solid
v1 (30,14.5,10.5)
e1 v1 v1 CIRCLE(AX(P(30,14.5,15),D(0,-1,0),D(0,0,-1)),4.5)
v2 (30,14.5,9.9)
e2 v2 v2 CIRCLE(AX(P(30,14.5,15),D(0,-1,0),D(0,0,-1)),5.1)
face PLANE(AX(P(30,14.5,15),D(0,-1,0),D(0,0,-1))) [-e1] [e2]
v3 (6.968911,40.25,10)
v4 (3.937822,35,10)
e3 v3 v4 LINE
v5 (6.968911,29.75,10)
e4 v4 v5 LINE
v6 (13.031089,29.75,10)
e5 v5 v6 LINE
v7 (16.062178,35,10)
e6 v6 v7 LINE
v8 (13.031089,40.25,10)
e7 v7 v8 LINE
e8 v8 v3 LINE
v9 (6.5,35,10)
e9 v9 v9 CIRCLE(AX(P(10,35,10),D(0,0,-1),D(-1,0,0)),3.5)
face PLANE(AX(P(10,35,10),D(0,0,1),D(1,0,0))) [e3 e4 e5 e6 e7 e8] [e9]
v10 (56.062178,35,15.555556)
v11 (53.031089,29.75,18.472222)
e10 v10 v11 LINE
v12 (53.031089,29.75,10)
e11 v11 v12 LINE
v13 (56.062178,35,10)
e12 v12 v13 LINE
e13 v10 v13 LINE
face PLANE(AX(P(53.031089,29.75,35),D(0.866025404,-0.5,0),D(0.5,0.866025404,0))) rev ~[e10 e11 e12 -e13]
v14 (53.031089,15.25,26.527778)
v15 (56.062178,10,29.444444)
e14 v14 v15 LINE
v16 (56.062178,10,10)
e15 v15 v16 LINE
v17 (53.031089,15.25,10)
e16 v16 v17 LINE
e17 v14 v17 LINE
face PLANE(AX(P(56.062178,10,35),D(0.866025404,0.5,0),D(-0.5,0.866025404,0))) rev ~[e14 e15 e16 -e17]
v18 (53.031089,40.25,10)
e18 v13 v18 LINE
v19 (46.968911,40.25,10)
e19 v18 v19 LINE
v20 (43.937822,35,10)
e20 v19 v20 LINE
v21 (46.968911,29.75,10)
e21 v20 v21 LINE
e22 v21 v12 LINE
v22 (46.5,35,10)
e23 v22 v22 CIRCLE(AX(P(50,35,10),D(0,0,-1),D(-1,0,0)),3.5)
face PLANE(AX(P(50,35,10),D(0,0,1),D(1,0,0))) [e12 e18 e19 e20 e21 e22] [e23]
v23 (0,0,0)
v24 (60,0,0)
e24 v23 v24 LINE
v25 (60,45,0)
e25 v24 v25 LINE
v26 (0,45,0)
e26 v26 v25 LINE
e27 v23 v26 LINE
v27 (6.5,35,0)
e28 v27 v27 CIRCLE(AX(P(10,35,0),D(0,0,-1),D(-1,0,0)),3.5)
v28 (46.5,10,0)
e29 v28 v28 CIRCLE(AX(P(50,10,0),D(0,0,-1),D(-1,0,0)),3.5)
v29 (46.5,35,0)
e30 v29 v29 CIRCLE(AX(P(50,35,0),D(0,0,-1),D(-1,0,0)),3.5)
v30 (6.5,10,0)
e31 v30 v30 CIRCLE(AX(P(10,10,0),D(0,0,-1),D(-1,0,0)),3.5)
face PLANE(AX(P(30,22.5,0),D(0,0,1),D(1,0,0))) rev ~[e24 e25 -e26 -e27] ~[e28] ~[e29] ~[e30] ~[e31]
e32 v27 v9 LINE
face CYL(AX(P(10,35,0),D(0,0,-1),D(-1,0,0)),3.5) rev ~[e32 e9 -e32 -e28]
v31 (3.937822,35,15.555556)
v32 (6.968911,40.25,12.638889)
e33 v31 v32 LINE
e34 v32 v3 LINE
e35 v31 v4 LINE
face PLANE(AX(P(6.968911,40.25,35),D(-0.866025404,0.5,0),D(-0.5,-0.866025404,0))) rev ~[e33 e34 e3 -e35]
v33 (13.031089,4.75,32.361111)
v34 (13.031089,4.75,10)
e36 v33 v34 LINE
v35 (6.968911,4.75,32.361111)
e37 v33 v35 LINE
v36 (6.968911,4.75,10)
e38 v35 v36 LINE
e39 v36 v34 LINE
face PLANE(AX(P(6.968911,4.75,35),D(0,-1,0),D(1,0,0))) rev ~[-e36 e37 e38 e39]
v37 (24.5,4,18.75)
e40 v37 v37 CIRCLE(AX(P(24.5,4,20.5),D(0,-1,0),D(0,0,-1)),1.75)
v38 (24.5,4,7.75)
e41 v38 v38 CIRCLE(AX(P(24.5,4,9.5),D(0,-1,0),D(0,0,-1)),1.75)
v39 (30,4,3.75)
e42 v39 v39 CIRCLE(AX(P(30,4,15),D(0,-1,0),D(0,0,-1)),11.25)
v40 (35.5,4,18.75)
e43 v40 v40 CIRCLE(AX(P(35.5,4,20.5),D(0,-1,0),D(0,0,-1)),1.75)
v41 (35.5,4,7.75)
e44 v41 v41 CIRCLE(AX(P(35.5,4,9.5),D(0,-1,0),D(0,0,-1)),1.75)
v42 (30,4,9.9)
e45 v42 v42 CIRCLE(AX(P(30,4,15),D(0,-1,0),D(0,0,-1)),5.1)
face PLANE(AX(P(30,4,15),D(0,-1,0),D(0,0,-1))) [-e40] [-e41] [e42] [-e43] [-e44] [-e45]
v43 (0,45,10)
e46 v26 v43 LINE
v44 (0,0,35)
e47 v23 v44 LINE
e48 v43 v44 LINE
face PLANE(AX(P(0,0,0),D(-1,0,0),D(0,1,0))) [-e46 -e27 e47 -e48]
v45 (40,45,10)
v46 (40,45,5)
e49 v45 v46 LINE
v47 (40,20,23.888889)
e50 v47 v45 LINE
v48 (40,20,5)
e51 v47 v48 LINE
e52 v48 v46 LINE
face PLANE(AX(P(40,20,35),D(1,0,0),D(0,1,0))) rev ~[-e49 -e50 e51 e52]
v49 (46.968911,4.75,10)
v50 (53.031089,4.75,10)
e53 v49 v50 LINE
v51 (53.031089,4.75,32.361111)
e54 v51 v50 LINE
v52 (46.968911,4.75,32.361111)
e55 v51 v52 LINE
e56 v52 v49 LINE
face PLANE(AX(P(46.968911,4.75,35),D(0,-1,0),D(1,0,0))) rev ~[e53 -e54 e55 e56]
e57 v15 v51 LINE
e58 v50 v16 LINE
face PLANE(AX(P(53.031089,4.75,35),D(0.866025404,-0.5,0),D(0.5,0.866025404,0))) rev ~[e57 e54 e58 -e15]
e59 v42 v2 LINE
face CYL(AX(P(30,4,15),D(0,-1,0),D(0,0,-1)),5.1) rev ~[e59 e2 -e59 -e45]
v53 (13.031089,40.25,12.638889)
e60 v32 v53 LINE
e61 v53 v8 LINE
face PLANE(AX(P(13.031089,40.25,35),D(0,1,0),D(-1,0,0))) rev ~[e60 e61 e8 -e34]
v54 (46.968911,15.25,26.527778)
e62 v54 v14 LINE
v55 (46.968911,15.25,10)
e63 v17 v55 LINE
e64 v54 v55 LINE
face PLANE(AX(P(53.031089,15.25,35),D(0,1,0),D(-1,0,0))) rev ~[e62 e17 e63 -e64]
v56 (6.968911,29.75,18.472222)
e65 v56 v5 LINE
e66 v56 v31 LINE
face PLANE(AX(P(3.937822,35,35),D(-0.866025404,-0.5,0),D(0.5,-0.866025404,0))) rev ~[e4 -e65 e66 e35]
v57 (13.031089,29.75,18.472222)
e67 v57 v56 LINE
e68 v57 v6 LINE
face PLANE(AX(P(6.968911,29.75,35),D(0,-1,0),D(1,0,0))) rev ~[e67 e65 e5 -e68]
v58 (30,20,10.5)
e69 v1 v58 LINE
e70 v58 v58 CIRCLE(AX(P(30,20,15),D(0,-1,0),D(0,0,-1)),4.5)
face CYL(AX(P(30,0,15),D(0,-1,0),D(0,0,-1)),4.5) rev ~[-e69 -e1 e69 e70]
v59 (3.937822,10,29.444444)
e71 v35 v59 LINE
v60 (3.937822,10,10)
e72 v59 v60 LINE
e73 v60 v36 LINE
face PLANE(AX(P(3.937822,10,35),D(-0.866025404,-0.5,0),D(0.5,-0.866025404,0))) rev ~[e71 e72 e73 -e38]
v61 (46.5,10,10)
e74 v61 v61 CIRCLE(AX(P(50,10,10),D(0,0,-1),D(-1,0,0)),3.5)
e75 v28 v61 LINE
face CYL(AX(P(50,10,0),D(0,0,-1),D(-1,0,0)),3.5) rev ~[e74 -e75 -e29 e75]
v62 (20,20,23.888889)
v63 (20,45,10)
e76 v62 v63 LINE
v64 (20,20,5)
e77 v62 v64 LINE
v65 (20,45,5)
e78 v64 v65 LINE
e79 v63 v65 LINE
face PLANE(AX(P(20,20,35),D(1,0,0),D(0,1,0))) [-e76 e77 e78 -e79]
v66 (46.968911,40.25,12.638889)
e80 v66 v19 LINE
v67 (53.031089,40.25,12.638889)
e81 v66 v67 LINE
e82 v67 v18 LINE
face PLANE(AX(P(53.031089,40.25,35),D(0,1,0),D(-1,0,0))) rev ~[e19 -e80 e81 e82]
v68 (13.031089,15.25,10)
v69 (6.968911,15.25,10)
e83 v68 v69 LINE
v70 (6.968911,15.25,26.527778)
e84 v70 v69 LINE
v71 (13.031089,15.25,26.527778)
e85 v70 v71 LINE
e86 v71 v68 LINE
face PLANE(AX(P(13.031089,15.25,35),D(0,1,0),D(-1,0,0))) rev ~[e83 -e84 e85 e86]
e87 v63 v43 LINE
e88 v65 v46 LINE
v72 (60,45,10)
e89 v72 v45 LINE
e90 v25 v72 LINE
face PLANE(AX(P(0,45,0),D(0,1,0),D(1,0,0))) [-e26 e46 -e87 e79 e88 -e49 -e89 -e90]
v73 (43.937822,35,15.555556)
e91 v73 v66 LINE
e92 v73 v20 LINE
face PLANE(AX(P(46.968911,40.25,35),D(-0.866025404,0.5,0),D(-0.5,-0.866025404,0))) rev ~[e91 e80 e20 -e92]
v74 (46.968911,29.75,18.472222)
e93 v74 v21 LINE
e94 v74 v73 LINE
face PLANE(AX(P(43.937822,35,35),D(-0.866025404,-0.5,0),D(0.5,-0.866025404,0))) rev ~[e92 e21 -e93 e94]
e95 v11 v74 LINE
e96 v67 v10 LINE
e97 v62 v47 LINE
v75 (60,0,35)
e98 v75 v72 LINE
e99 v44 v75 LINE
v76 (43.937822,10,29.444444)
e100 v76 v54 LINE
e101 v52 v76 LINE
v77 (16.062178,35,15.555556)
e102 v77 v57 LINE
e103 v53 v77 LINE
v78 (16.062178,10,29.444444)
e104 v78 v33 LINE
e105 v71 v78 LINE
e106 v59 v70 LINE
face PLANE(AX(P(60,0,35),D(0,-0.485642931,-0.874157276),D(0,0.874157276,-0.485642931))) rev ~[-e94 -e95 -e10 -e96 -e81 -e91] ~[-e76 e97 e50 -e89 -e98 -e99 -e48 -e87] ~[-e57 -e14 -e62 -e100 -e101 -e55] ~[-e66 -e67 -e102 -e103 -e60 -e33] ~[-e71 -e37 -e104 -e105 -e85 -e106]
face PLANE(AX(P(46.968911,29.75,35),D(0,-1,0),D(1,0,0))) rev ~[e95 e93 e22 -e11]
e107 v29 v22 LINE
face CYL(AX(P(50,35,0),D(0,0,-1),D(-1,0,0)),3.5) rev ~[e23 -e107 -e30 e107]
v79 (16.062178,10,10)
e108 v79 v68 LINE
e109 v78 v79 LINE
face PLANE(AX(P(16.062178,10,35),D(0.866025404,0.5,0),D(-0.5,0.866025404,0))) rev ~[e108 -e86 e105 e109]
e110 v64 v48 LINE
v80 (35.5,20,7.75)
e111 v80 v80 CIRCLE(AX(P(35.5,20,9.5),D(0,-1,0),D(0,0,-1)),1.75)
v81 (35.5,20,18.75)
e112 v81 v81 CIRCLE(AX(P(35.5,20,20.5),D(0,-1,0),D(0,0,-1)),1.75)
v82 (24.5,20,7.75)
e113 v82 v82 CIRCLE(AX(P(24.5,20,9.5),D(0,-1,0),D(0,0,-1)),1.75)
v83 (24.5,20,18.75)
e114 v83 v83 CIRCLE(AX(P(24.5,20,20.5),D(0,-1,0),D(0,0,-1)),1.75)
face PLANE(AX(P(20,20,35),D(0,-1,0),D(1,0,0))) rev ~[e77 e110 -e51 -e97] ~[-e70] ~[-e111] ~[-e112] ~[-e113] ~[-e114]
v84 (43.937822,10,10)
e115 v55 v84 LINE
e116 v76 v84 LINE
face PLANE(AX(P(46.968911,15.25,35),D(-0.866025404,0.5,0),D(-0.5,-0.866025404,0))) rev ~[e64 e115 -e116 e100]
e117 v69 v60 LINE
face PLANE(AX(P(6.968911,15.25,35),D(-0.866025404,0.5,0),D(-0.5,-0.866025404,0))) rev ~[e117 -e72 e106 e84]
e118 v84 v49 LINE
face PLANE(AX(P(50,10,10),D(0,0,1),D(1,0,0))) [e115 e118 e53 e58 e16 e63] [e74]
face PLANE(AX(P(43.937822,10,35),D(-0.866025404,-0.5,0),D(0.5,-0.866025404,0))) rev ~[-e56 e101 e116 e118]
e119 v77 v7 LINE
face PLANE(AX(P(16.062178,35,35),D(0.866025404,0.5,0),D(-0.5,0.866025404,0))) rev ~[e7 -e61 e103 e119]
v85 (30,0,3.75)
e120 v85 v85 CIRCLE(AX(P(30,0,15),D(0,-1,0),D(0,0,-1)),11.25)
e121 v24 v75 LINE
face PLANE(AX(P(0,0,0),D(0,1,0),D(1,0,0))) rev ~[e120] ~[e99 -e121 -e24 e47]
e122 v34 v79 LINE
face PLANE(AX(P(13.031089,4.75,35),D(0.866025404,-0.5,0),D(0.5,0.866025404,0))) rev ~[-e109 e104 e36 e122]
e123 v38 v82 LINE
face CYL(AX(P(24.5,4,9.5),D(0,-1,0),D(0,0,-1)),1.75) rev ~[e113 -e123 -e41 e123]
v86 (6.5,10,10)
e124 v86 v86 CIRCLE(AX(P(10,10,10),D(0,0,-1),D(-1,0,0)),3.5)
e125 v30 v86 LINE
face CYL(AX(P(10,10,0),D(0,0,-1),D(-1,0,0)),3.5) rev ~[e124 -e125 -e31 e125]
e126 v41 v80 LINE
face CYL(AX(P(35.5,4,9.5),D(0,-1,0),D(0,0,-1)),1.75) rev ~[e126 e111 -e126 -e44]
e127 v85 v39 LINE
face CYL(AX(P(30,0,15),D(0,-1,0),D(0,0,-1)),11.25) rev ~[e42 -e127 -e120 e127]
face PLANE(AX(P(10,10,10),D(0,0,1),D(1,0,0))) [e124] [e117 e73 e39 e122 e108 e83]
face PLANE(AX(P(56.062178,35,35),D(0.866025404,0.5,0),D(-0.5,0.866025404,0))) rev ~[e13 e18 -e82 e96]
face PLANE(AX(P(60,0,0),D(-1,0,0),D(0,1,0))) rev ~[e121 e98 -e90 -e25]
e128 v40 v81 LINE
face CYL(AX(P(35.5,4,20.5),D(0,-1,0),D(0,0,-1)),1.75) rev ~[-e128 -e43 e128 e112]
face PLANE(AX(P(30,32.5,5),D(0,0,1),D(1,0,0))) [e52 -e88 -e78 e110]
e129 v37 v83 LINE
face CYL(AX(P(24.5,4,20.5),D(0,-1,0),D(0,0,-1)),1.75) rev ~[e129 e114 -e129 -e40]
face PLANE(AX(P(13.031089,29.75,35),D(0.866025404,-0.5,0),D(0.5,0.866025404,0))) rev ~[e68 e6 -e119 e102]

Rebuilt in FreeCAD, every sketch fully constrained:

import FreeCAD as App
import Part
import Sketcher

V = App.Vector
Q = App.Units.Quantity


def add_polygon(sketch, points):
    """Adds a closed chain of lines whose ends are joined by coincident constraints."""
    first, n = sketch.GeometryCount, len(points)
    for a, b in zip(points, points[1:] + points[:1]):
        sketch.addGeometry(Part.LineSegment(App.Vector(*a, 0), App.Vector(*b, 0)), False)
    for i in range(n):
        sketch.addConstraint(Sketcher.Constraint("Coincident", first + i, 2, first + (i + 1) % n, 1))

doc = App.newDocument("Part")
body = doc.addObject("PartDesign::Body", "Body")

# Sketch on XY plane
sketch1 = doc.addObject("Sketcher::SketchObject", "Sketch")
body.addObject(sketch1)
sketch1.AttachmentSupport = (doc.XY_Plane, [""])
sketch1.MapMode = "FlatFace"
add_polygon(sketch1, [(0, 45), (0, 0), (60, 0), (60, 45)])  # lines 0-3
sketch1.addConstraint(Sketcher.Constraint("Vertical", 0))
sketch1.addConstraint(Sketcher.Constraint("Horizontal", 1))
sketch1.addConstraint(Sketcher.Constraint("Vertical", 2))
sketch1.addConstraint(Sketcher.Constraint("Horizontal", 3))
sketch1.addConstraint(Sketcher.Constraint("Coincident", 0, 2, -1, 1))
sketch1.addConstraint(Sketcher.Constraint("DistanceX", 1, 1, 1, 2, Q("60 mm")))
sketch1.addConstraint(Sketcher.Constraint("DistanceY", 0, 2, 0, 1, Q("45 mm")))
pad1 = doc.addObject("PartDesign::Pad", "Pad")
body.addObject(pad1)
pad1.Profile = sketch1
pad1.Length = 35

# Sketch on XZ plane
sketch2 = doc.addObject("Sketcher::SketchObject", "Sketch001")
body.addObject(sketch2)
sketch2.AttachmentSupport = (doc.XZ_Plane, [""])
sketch2.MapMode = "FlatFace"
sketch2.addGeometry(Part.Circle(V(30, 15, 0), V(0, 0, 1), 4.5), False)
sketch2.addConstraint(Sketcher.Constraint("Diameter", 0, Q("9 mm")))
sketch2.addConstraint(Sketcher.Constraint("DistanceX", -1, 1, 0, 3, Q("30 mm")))
sketch2.addConstraint(Sketcher.Constraint("DistanceY", -1, 1, 0, 3, Q("15 mm")))
pocket1 = doc.addObject("PartDesign::Pocket", "Pocket")
body.addObject(pocket1)
pocket1.Profile = sketch2
pocket1.Length = 50

# Sketch on XZ plane
sketch3 = doc.addObject("Sketcher::SketchObject", "Sketch002")
body.addObject(sketch3)
sketch3.AttachmentSupport = (doc.XZ_Plane, [""])
sketch3.MapMode = "FlatFace"
sketch3.addGeometry(Part.Circle(V(30, 15, 0), V(0, 0, 1), 11), False)
sketch3.addConstraint(Sketcher.Constraint("Diameter", 0, Q("22.5 mm")))
sketch3.addConstraint(Sketcher.Constraint("DistanceX", -1, 1, 0, 3, Q("30 mm")))
sketch3.addConstraint(Sketcher.Constraint("DistanceY", -1, 1, 0, 3, Q("15 mm")))
pocket2 = doc.addObject("PartDesign::Pocket", "Pocket001")
body.addObject(pocket2)
pocket2.Profile = sketch3
pocket2.Length = 4

# Sketch on XY plane
sketch4 = doc.addObject("Sketcher::SketchObject", "Sketch003")
body.addObject(sketch4)
sketch4.AttachmentSupport = (doc.XY_Plane, [""])
sketch4.MapMode = "FlatFace"
sketch4.AttachmentOffset = App.Placement(V(0, 0, 35), App.Rotation())
add_polygon(sketch4, [(20, 45), (20, 20), (40, 20), (40, 45)])  # lines 0-3
sketch4.addConstraint(Sketcher.Constraint("Vertical", 0))
sketch4.addConstraint(Sketcher.Constraint("Horizontal", 1))
sketch4.addConstraint(Sketcher.Constraint("Vertical", 2))
sketch4.addConstraint(Sketcher.Constraint("Horizontal", 3))
sketch4.addConstraint(Sketcher.Constraint("DistanceX", 1, 1, 1, 2, Q("20 mm")))
sketch4.addConstraint(Sketcher.Constraint("DistanceY", 0, 2, 0, 1, Q("25 mm")))
sketch4.addConstraint(Sketcher.Constraint("DistanceX", -1, 1, 0, 2, Q("20 mm")))
sketch4.addConstraint(Sketcher.Constraint("DistanceY", -1, 1, 0, 2, Q("20 mm")))
pocket3 = doc.addObject("PartDesign::Pocket", "Pocket002")
body.addObject(pocket3)
pocket3.Profile = sketch4
pocket3.Length = 30

# Sketch on YZ plane
sketch5 = doc.addObject("Sketcher::SketchObject", "Sketch004")
body.addObject(sketch5)
sketch5.AttachmentSupport = (doc.YZ_Plane, [""])
sketch5.MapMode = "FlatFace"
sketch5.AttachmentOffset = App.Placement(V(0, 0, 60), App.Rotation())
add_polygon(sketch5, [(0, 35), (45, 10), (45, 35)])  # lines 0-2
sketch5.addConstraint(Sketcher.Constraint("Vertical", 1))
sketch5.addConstraint(Sketcher.Constraint("Horizontal", 2))
sketch5.addConstraint(Sketcher.Constraint("PointOnObject", 2, 2, -2))
sketch5.addConstraint(Sketcher.Constraint("DistanceX", 2, 2, 2, 1, Q("45 mm")))
sketch5.addConstraint(Sketcher.Constraint("DistanceY", 1, 1, 1, 2, Q("25 mm")))
sketch5.addConstraint(Sketcher.Constraint("DistanceY", -1, 1, 0, 2, Q("10 mm")))
pocket4 = doc.addObject("PartDesign::Pocket", "Pocket003")
body.addObject(pocket4)
pocket4.Profile = sketch5
pocket4.Length = 80

# Sketch on XZ plane
sketch6 = doc.addObject("Sketcher::SketchObject", "Sketch005")
body.addObject(sketch6)
sketch6.AttachmentSupport = (doc.XZ_Plane, [""])
sketch6.MapMode = "FlatFace"
sketch6.AttachmentOffset = App.Placement(V(0, 0, -4), App.Rotation())
sketch6.addGeometry(Part.Circle(V(24.5, 20.5, 0), V(0, 0, 1), 1.8), False)
sketch6.addGeometry(Part.Circle(V(35.5, 20.5, 0), V(0, 0, 1), 1.8), False)
sketch6.addGeometry(Part.Circle(V(35.5, 9.5, 0), V(0, 0, 1), 1.8), False)
sketch6.addGeometry(Part.Circle(V(24.5, 9.5, 0), V(0, 0, 1), 1.8), False)
sketch6.addConstraint(Sketcher.Constraint("Equal", 0, 1))
sketch6.addConstraint(Sketcher.Constraint("Equal", 1, 2))
sketch6.addConstraint(Sketcher.Constraint("Equal", 2, 3))
sketch6.addConstraint(Sketcher.Constraint("Horizontal", 0, 3, 1, 3))
sketch6.addConstraint(Sketcher.Constraint("Horizontal", 2, 3, 3, 3))
sketch6.addConstraint(Sketcher.Constraint("Vertical", 1, 3, 2, 3))
sketch6.addConstraint(Sketcher.Constraint("Vertical", 0, 3, 3, 3))
sketch6.addConstraint(Sketcher.Constraint("Diameter", 0, Q("3.5 mm")))
sketch6.addConstraint(Sketcher.Constraint("DistanceX", 0, 3, 1, 3, Q("11 mm")))
sketch6.addConstraint(Sketcher.Constraint("DistanceY", 2, 3, 1, 3, Q("11 mm")))
sketch6.addConstraint(Sketcher.Constraint("DistanceX", -1, 1, 0, 3, Q("24.5 mm")))
sketch6.addConstraint(Sketcher.Constraint("DistanceY", -1, 1, 0, 3, Q("20.5 mm")))
pocket5 = doc.addObject("PartDesign::Pocket", "Pocket004")
body.addObject(pocket5)
pocket5.Profile = sketch6
pocket5.Length = 25

# Sketch on XY plane
sketch7 = doc.addObject("Sketcher::SketchObject", "Sketch006")
body.addObject(sketch7)
sketch7.AttachmentSupport = (doc.XY_Plane, [""])
sketch7.MapMode = "FlatFace"
sketch7.addGeometry(Part.Circle(V(50, 10, 0), V(0, 0, 1), 3.5), False)
sketch7.addGeometry(Part.Circle(V(50, 35, 0), V(0, 0, 1), 3.5), False)
sketch7.addGeometry(Part.Circle(V(10, 35, 0), V(0, 0, 1), 3.5), False)
sketch7.addGeometry(Part.Circle(V(10, 10, 0), V(0, 0, 1), 3.5), False)
sketch7.addConstraint(Sketcher.Constraint("Equal", 0, 1))
sketch7.addConstraint(Sketcher.Constraint("Equal", 1, 2))
sketch7.addConstraint(Sketcher.Constraint("Equal", 2, 3))
sketch7.addConstraint(Sketcher.Constraint("Horizontal", 1, 3, 2, 3))
sketch7.addConstraint(Sketcher.Constraint("Horizontal", 0, 3, 3, 3))
sketch7.addConstraint(Sketcher.Constraint("Vertical", 0, 3, 1, 3))
sketch7.addConstraint(Sketcher.Constraint("Vertical", 2, 3, 3, 3))
sketch7.addConstraint(Sketcher.Constraint("Diameter", 0, Q("7 mm")))
sketch7.addConstraint(Sketcher.Constraint("DistanceX", -1, 1, 0, 3, Q("50 mm")))
sketch7.addConstraint(Sketcher.Constraint("DistanceY", -1, 1, 0, 3, Q("10 mm")))
sketch7.addConstraint(Sketcher.Constraint("DistanceY", -1, 1, 1, 3, Q("35 mm")))
sketch7.addConstraint(Sketcher.Constraint("DistanceX", -1, 1, 2, 3, Q("10 mm")))
pocket6 = doc.addObject("PartDesign::Pocket", "Pocket005")
body.addObject(pocket6)
pocket6.Profile = sketch7
pocket6.Length = 44
pocket6.Reversed = True

# Sketch on XY plane
sketch8 = doc.addObject("Sketcher::SketchObject", "Sketch007")
body.addObject(sketch8)
sketch8.AttachmentSupport = (doc.XY_Plane, [""])
sketch8.MapMode = "FlatFace"
sketch8.AttachmentOffset = App.Placement(V(0, 0, 35), App.Rotation())
add_polygon(sketch8, [(7, 40), (4, 35), (7, 30), (13, 30), (16, 35), (13, 40)])  # lines 0-5
add_polygon(sketch8, [(13, 5), (16, 10), (13, 15), (7, 15), (4, 10), (7, 5)])  # lines 6-11
add_polygon(sketch8, [(53, 30), (56, 35), (53, 40), (47, 40), (44, 35), (47, 30)])  # lines 12-17
add_polygon(sketch8, [(53, 5), (56, 10), (53, 15), (47, 15), (44, 10), (47, 5)])  # lines 18-23
sketch8.addConstraint(Sketcher.Constraint("Horizontal", 2))
sketch8.addConstraint(Sketcher.Constraint("Horizontal", 5))
sketch8.addConstraint(Sketcher.Constraint("Horizontal", 8))
sketch8.addConstraint(Sketcher.Constraint("Horizontal", 11))
sketch8.addConstraint(Sketcher.Constraint("Horizontal", 14))
sketch8.addConstraint(Sketcher.Constraint("Horizontal", 17))
sketch8.addConstraint(Sketcher.Constraint("Horizontal", 20))
sketch8.addConstraint(Sketcher.Constraint("Horizontal", 23))
sketch8.addConstraint(Sketcher.Constraint("Parallel", 0, 3))
sketch8.addConstraint(Sketcher.Constraint("Parallel", 1, 4))
sketch8.addConstraint(Sketcher.Constraint("Parallel", 3, 6))
sketch8.addConstraint(Sketcher.Constraint("Parallel", 4, 7))
sketch8.addConstraint(Sketcher.Constraint("Parallel", 6, 9))
sketch8.addConstraint(Sketcher.Constraint("Parallel", 7, 10))
sketch8.addConstraint(Sketcher.Constraint("Parallel", 9, 12))
sketch8.addConstraint(Sketcher.Constraint("Parallel", 10, 13))
sketch8.addConstraint(Sketcher.Constraint("Parallel", 12, 15))
sketch8.addConstraint(Sketcher.Constraint("Parallel", 13, 16))
sketch8.addConstraint(Sketcher.Constraint("Parallel", 15, 18))
sketch8.addConstraint(Sketcher.Constraint("Parallel", 16, 19))
sketch8.addConstraint(Sketcher.Constraint("Parallel", 18, 21))
sketch8.addConstraint(Sketcher.Constraint("Parallel", 19, 22))
sketch8.addConstraint(Sketcher.Constraint("Horizontal", 0, 2, 3, 2))
sketch8.addConstraint(Sketcher.Constraint("Horizontal", 6, 2, 9, 2))
sketch8.addConstraint(Sketcher.Constraint("Horizontal", 3, 2, 12, 2))
sketch8.addConstraint(Sketcher.Constraint("Horizontal", 5, 2, 13, 2))
sketch8.addConstraint(Sketcher.Constraint("Horizontal", 12, 2, 15, 2))
sketch8.addConstraint(Sketcher.Constraint("Horizontal", 2, 2, 16, 2))
sketch8.addConstraint(Sketcher.Constraint("Horizontal", 9, 2, 18, 2))
sketch8.addConstraint(Sketcher.Constraint("Horizontal", 8, 2, 19, 2))
sketch8.addConstraint(Sketcher.Constraint("Horizontal", 18, 2, 21, 2))
sketch8.addConstraint(Sketcher.Constraint("Horizontal", 11, 2, 22, 2))
sketch8.addConstraint(Sketcher.Constraint("Vertical", 2, 2, 4, 2))
sketch8.addConstraint(Sketcher.Constraint("Vertical", 1, 2, 5, 2))
sketch8.addConstraint(Sketcher.Constraint("Vertical", 3, 2, 6, 2))
sketch8.addConstraint(Sketcher.Constraint("Vertical", 4, 2, 7, 2))
sketch8.addConstraint(Sketcher.Constraint("Vertical", 5, 2, 8, 2))
sketch8.addConstraint(Sketcher.Constraint("Vertical", 8, 2, 10, 2))
sketch8.addConstraint(Sketcher.Constraint("Vertical", 12, 2, 18, 2))
sketch8.addConstraint(Sketcher.Constraint("Vertical", 16, 2, 20, 2))
sketch8.addConstraint(Sketcher.Constraint("Equal", 11, 14))
sketch8.addConstraint(Sketcher.Constraint("Angle", 0, Q("-120 deg")))
sketch8.addConstraint(Sketcher.Constraint("DistanceY", -1, 1, 0, 2, Q("35 mm")))
sketch8.addConstraint(Sketcher.Constraint("DistanceY", -1, 1, 6, 2, Q("10 mm")))
sketch8.addConstraint(Sketcher.Constraint("DistanceX", 3, 2, 12, 2, Q("40 mm")))
sketch8.addConstraint(Sketcher.Constraint("DistanceY", 2, 2, 4, 2, Q("10.5 mm")))
sketch8.addConstraint(Sketcher.Constraint("DistanceX", 2, 1, 2, 2, Q("6.062178 mm")))
sketch8.addConstraint(Sketcher.Constraint("DistanceX", -1, 1, 1, 2, Q("6.968911 mm")))
pocket7 = doc.addObject("PartDesign::Pocket", "Pocket006")
body.addObject(pocket7)
pocket7.Profile = sketch8
pocket7.Length = 25

# Sketch on XZ plane
sketch9 = doc.addObject("Sketcher::SketchObject", "Sketch008")
body.addObject(sketch9)
sketch9.AttachmentSupport = (doc.XZ_Plane, [""])
sketch9.MapMode = "FlatFace"
sketch9.AttachmentOffset = App.Placement(V(0, 0, -4), App.Rotation())
sketch9.addGeometry(Part.Circle(V(30, 15, 0), V(0, 0, 1), 5), False)
sketch9.addConstraint(Sketcher.Constraint("Diameter", 0, Q("10.2 mm")))
sketch9.addConstraint(Sketcher.Constraint("DistanceX", -1, 1, 0, 3, Q("30 mm")))
sketch9.addConstraint(Sketcher.Constraint("DistanceY", -1, 1, 0, 3, Q("15 mm")))
pocket8 = doc.addObject("PartDesign::Pocket", "Pocket007")
body.addObject(pocket8)
pocket8.Profile = sketch9
pocket8.Length = 10.5

doc.recompute()
